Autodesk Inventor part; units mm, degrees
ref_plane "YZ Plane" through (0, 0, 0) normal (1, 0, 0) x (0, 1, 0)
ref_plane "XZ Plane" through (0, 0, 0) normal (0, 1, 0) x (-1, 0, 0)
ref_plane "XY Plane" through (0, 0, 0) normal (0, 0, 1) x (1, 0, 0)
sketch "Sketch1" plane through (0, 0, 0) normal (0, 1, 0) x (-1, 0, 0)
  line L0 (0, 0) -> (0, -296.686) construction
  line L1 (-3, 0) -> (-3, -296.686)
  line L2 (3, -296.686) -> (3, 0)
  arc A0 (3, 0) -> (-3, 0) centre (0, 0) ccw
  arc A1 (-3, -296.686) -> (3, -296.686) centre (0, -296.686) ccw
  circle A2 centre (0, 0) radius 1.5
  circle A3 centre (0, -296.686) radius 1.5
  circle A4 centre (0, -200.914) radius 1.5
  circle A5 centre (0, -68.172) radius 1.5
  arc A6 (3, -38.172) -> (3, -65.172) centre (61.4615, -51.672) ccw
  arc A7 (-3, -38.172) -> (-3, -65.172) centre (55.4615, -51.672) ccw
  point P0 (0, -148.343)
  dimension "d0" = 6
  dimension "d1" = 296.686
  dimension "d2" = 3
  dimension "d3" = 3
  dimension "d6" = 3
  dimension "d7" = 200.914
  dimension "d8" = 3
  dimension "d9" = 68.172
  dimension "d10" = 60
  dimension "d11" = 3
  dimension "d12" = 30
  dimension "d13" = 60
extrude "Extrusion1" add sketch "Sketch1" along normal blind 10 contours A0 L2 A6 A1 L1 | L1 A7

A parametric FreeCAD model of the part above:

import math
import FreeCAD as App
import Part
import Sketcher
from FreeCAD import Vector

doc = App.newDocument("Part")
body = doc.addObject("PartDesign::Body", "Body")

# Sketch on XZ plane
sketch1 = doc.addObject("Sketcher::SketchObject", "Sketch")
body.addObject(sketch1)
sketch1.AttachmentSupport = (doc.XZ_Plane, [""])
sketch1.MapMode = "FlatFace"
sketch1.addGeometry([
    Part.ArcOfCircle(Part.Circle(Vector(0, 0, 0), Vector(0, 0, 1), 3), math.radians(0), math.radians(180)),  # 0
    Part.LineSegment(Vector(3, 0, 0), Vector(3, -38.2, 0)),  # 1
    Part.ArcOfCircle(Part.Circle(Vector(-55.5, -51.7, 0), Vector(0, 0, 1), 60), math.radians(-13), math.radians(13)),  # 2
    Part.LineSegment(Vector(3, -65.2, 0), Vector(3, -296.7, 0)),  # 3
    Part.ArcOfCircle(Part.Circle(Vector(0, -296.7, 0), Vector(0, 0, 1), 3), math.radians(180), math.radians(360)),  # 4
    Part.LineSegment(Vector(-3, -296.7, 0), Vector(-3, -65.2, 0)),  # 5
    Part.ArcOfCircle(Part.Circle(Vector(-61.5, -51.7, 0), Vector(0, 0, 1), 60), math.radians(-13), math.radians(13)),  # 6
    Part.LineSegment(Vector(-3, -38.2, 0), Vector(-3, 0, 0)),  # 7
    Part.Circle(Vector(0, -296.7, 0), Vector(0, 0, 1), 1.5),  # 8
    Part.Circle(Vector(0, -200.9, 0), Vector(0, 0, 1), 1.5),  # 9
    Part.Circle(Vector(0, -68.2, 0), Vector(0, 0, 1), 1.5),  # 10
    Part.Circle(Vector(0, 0, 0), Vector(0, 0, 1), 1.5),  # 11
], False)
sketch1.addConstraint([
    Sketcher.Constraint("Tangent", 0, 1, 1, 1),
    Sketcher.Constraint("Coincident", 1, 2, 2, 2),
    Sketcher.Constraint("Coincident", 2, 1, 3, 1),
    Sketcher.Constraint("Tangent", 3, 2, 4, 2),
    Sketcher.Constraint("Tangent", 4, 1, 5, 1),
    Sketcher.Constraint("Coincident", 5, 2, 6, 1),
    Sketcher.Constraint("Coincident", 6, 2, 7, 1),
    Sketcher.Constraint("Tangent", 7, 2, 0, 2),
    Sketcher.Constraint("Vertical", 1),
    Sketcher.Constraint("Vertical", 3),
    Sketcher.Constraint("Vertical", 5),
    Sketcher.Constraint("Vertical", 7),
    Sketcher.Constraint("Coincident", 0, 3, -1, 1),
    Sketcher.Constraint("Coincident", 11, 3, -1, 1),
    Sketcher.Constraint("Coincident", 8, 3, 4, 3),
    Sketcher.Constraint("Equal", 0, 4),
    Sketcher.Constraint("Equal", 2, 6),
    Sketcher.Constraint("Equal", 8, 9),
    Sketcher.Constraint("Equal", 9, 10),
    Sketcher.Constraint("Equal", 10, 11),
    Sketcher.Constraint("Symmetric", 2, 1, 5, 2, -2),
    Sketcher.Constraint("PointOnObject", 9, 3, -2),
    Sketcher.Constraint("PointOnObject", 10, 3, -2),
    Sketcher.Constraint("Horizontal", 2, 3, 6, 3),
    Sketcher.Constraint("Diameter", 8, 3.0),
    Sketcher.Constraint("Radius", 0, 3.0),
    Sketcher.Constraint("Radius", 2, 60.0),
    Sketcher.Constraint("DistanceY", 10, 3, 1, 2, 30.0),
    Sketcher.Constraint("DistanceY", 10, 3, 2, 1, 3.0),
    Sketcher.Constraint("DistanceY", 4, 3, -1, 1, 296.686),
    Sketcher.Constraint("DistanceY", 9, 3, -1, 1, 200.914),
    Sketcher.Constraint("DistanceY", 10, 3, -1, 1, 68.172),
])
pad1 = doc.addObject("PartDesign::Pad", "Pad")
body.addObject(pad1)
pad1.Profile = sketch1
pad1.Length = 10
pad1.Reversed = True

doc.recompute()
